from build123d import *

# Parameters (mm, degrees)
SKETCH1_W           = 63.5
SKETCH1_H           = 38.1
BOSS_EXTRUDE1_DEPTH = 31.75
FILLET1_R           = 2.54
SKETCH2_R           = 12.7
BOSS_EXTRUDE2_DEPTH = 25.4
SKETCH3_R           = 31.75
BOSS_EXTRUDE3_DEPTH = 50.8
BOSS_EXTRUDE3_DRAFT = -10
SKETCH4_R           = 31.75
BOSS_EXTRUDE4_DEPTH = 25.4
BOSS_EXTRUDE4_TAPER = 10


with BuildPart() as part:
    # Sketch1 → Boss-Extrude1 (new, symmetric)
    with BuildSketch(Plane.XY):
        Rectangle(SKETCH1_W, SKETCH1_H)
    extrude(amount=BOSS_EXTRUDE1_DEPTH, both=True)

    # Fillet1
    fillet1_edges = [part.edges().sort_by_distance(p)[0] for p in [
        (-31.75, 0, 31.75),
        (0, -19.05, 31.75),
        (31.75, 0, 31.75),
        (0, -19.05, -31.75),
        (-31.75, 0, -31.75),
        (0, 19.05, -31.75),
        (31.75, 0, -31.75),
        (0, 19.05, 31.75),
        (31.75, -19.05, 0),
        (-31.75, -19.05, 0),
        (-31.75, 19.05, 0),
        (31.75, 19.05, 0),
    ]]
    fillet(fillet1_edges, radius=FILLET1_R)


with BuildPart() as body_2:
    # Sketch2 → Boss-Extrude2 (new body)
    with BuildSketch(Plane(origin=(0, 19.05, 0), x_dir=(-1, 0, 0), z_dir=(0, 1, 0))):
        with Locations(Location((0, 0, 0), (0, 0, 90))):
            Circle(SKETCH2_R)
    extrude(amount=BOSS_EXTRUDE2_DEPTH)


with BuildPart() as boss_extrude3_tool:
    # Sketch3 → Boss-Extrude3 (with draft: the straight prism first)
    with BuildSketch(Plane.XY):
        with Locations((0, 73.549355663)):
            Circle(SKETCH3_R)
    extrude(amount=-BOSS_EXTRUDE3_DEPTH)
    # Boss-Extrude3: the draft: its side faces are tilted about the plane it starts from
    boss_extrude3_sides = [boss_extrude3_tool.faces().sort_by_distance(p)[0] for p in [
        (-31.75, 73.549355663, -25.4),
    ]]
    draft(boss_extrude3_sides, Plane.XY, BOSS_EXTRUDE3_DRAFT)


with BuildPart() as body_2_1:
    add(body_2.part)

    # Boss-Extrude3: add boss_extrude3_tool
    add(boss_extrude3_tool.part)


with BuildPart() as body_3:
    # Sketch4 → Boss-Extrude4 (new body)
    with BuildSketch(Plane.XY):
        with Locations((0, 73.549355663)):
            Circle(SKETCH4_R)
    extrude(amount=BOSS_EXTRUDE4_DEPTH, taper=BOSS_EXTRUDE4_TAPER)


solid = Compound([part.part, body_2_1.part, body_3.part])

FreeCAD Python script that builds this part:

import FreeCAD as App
import Part
import Sketcher
Q = App.Units.Quantity


def faces_at(feature, points):
    """Names of the faces that lie closest to the given points."""
    faces = feature.Shape.Faces
    near = lambda p: min(range(len(faces)), key=lambda i: faces[i].distToShape(Part.Vertex(*p))[0])
    return sorted({f"Face{near(p) + 1}" for p in points})


def add_polygon(sketch, points):
    """Adds a closed chain of lines whose ends are joined by coincident constraints."""
    first, n = sketch.GeometryCount, len(points)
    for a, b in zip(points, points[1:] + points[:1]):
        sketch.addGeometry(Part.LineSegment(App.Vector(*a, 0), App.Vector(*b, 0)), False)
    for i in range(n):
        sketch.addConstraint(Sketcher.Constraint("Coincident", first + i, 2, first + (i + 1) % n, 1))

doc = App.newDocument("Part")
body = doc.addObject("PartDesign::Body", "Body")

# Sketch on XY plane
sketch1 = doc.addObject("Sketcher::SketchObject", "Sketch")
body.addObject(sketch1)
sketch1.AttachmentSupport = (doc.XY_Plane, [""])
sketch1.MapMode = "FlatFace"
add_polygon(sketch1, [(-32, 19), (-32, -19), (32, -19), (32, 19)])  # lines 0-3
sketch1.addConstraint(Sketcher.Constraint("Vertical", 0))
sketch1.addConstraint(Sketcher.Constraint("Horizontal", 1))
sketch1.addConstraint(Sketcher.Constraint("Vertical", 2))
sketch1.addConstraint(Sketcher.Constraint("Horizontal", 3))
sketch1.addConstraint(Sketcher.Constraint("Symmetric", 0, 2, 2, 2, -1, 1))
sketch1.addConstraint(Sketcher.Constraint("DistanceX", 1, 1, 1, 2, Q("2.5 in")))
sketch1.addConstraint(Sketcher.Constraint("DistanceY", 0, 2, 0, 1, Q("1.5 in")))
pad1 = doc.addObject("PartDesign::Pad", "Pad")
body.addObject(pad1)
pad1.Profile = sketch1
pad1.Length = Q("2.5 in")
pad1.Midplane = True
doc.recompute()

fillet = doc.addObject("PartDesign::Fillet", "Fillet")
body.addObject(fillet)
fillet.Base = (pad1, ["Edge1"])
fillet.UseAllEdges = True
fillet.Radius = Q("0.1 in")
body2 = doc.addObject("PartDesign::Body", "Body001")

# Sketch on XZ plane
sketch2 = doc.addObject("Sketcher::SketchObject", "Sketch001")
body2.addObject(sketch2)
sketch2.AttachmentSupport = (doc.getObject("XZ_Plane001"), [""])
sketch2.MapMode = "FlatFace"
sketch2.AttachmentOffset = App.Placement(App.Vector(0, 0, -0.75 * 25.4), App.Rotation())
sketch2.addGeometry(Part.Circle(App.Vector(0, 0, 0), App.Vector(0, 0, 1), 13), False)
sketch2.addConstraint(Sketcher.Constraint("Coincident", 0, 3, -1, 1))
sketch2.addConstraint(Sketcher.Constraint("Diameter", 0, Q("1 in")))
pad2 = doc.addObject("PartDesign::Pad", "Pad001")
body2.addObject(pad2)
pad2.Profile = sketch2
pad2.Length = Q("1 in")
pad2.Reversed = True
body3 = doc.addObject("PartDesign::Body", "Body002")

# Sketch on XY plane
sketch3 = doc.addObject("Sketcher::SketchObject", "Sketch002")
body3.addObject(sketch3)
sketch3.AttachmentSupport = (doc.getObject("XY_Plane002"), [""])
sketch3.MapMode = "FlatFace"
sketch3.addGeometry(Part.Circle(App.Vector(0, 74, 0), App.Vector(0, 0, 1), 32), False)
sketch3.addConstraint(Sketcher.Constraint("PointOnObject", 0, 3, -2))
sketch3.addConstraint(Sketcher.Constraint("Diameter", 0, Q("2.5 in")))
sketch3.addConstraint(Sketcher.Constraint("DistanceY", -1, 1, 0, 3, 73.549356))
pad3 = doc.addObject("PartDesign::Pad", "Pad002")
body3.addObject(pad3)
pad3.Profile = sketch3
pad3.Length = Q("2 in")
pad3.Reversed = True
doc.recompute()

draft = doc.addObject("PartDesign::Draft", "Draft")
body3.addObject(draft)
draft.Base = (pad3, faces_at(pad3, [(-31.75, 73.549, -25.4)]))
draft.NeutralPlane = (doc.getObject("XY_Plane002"), [""])
draft.Angle = 10
draft.Reversed = True
doc.recompute()

boolean = doc.addObject("PartDesign::Boolean", "Boolean")
body2.addObject(boolean)
boolean.Type = "Fuse"
boolean.addObjects([body3])
body4 = doc.addObject("PartDesign::Body", "Body003")

# Sketch on XY plane
sketch4 = doc.addObject("Sketcher::SketchObject", "Sketch003")
body4.addObject(sketch4)
sketch4.AttachmentSupport = (doc.getObject("XY_Plane003"), [""])
sketch4.MapMode = "FlatFace"
sketch4.addGeometry(Part.Circle(App.Vector(0, 74, 0), App.Vector(0, 0, 1), 32), False)
sketch4.addConstraint(Sketcher.Constraint("PointOnObject", 0, 3, -2))
sketch4.addConstraint(Sketcher.Constraint("Diameter", 0, Q("2.5 in")))
sketch4.addConstraint(Sketcher.Constraint("DistanceY", -1, 1, 0, 3, 73.549356))
pad4 = doc.addObject("PartDesign::Pad", "Pad003")
body4.addObject(pad4)
pad4.Profile = sketch4
pad4.Length = Q("1 in")
pad4.TaperAngle = -10

doc.recompute()
